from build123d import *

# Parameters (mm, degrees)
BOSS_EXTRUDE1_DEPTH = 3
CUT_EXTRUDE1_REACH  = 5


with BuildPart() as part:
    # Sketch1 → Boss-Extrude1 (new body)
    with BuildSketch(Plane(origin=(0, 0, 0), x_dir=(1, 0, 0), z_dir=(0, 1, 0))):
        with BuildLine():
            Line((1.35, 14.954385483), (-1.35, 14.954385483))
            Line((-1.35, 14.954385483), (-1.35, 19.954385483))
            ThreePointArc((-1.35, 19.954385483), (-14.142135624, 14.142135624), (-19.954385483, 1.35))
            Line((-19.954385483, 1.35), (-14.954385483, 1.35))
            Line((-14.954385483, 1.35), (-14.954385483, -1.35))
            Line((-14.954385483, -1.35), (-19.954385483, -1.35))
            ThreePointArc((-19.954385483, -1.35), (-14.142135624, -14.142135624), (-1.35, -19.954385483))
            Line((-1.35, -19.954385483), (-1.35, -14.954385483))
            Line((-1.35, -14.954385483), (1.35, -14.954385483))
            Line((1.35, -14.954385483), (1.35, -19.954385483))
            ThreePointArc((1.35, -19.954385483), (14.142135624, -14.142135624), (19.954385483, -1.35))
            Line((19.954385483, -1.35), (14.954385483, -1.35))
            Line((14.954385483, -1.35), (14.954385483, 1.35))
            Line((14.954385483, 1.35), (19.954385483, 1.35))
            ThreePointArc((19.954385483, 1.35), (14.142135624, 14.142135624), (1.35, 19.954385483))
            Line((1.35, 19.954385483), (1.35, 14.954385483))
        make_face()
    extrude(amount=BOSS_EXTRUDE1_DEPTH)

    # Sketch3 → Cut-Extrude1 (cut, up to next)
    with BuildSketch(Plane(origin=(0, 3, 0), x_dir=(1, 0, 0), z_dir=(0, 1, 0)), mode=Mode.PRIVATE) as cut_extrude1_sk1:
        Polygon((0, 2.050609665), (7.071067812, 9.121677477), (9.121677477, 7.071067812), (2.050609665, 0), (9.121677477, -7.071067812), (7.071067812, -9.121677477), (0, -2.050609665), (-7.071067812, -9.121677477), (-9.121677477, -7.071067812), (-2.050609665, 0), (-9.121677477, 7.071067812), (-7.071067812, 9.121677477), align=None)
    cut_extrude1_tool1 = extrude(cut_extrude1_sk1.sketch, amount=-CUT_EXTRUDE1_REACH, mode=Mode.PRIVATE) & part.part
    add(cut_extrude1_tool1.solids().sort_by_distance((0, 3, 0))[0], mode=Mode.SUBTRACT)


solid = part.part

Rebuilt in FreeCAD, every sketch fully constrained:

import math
import FreeCAD as App
import Part
import Sketcher

doc = App.newDocument("Part")
body = doc.addObject("PartDesign::Body", "Body")

# Sketch on XZ plane
sketch1 = doc.addObject("Sketcher::SketchObject", "Sketch")
body.addObject(sketch1)
sketch1.AttachmentSupport = (doc.XZ_Plane, [""])
sketch1.MapMode = "FlatFace"
sketch1.addGeometry([
    Part.LineSegment(App.Vector(1.4, -15, 0), App.Vector(-1.4, -15, 0)),  # 0
    Part.LineSegment(App.Vector(-1.4, -15, 0), App.Vector(-1.4, -20, 0)),  # 1
    Part.ArcOfCircle(Part.Circle(App.Vector(0, 0, 0), App.Vector(0, 0, 1), 20), math.radians(-176), math.radians(-94)),  # 2
    Part.LineSegment(App.Vector(-20, -1.4, 0), App.Vector(-15, -1.4, 0)),  # 3
    Part.LineSegment(App.Vector(-15, -1.4, 0), App.Vector(-15, 1.4, 0)),  # 4
    Part.LineSegment(App.Vector(-15, 1.4, 0), App.Vector(-20, 1.4, 0)),  # 5
    Part.ArcOfCircle(Part.Circle(App.Vector(0, 0, 0), App.Vector(0, 0, 1), 20), math.radians(94), math.radians(176)),  # 6
    Part.LineSegment(App.Vector(-1.4, 20, 0), App.Vector(-1.4, 15, 0)),  # 7
    Part.LineSegment(App.Vector(-1.4, 15, 0), App.Vector(1.4, 15, 0)),  # 8
    Part.LineSegment(App.Vector(1.4, 15, 0), App.Vector(1.4, 20, 0)),  # 9
    Part.ArcOfCircle(Part.Circle(App.Vector(0, 0, 0), App.Vector(0, 0, 1), 20), math.radians(4), math.radians(86)),  # 10
    Part.LineSegment(App.Vector(20, 1.4, 0), App.Vector(15, 1.4, 0)),  # 11
    Part.LineSegment(App.Vector(15, 1.4, 0), App.Vector(15, -1.4, 0)),  # 12
    Part.LineSegment(App.Vector(15, -1.4, 0), App.Vector(20, -1.4, 0)),  # 13
    Part.ArcOfCircle(Part.Circle(App.Vector(0, 0, 0), App.Vector(0, 0, 1), 20), math.radians(-86), math.radians(-4)),  # 14
    Part.LineSegment(App.Vector(1.4, -20, 0), App.Vector(1.4, -15, 0)),  # 15
], False)
sketch1.addConstraint([
    Sketcher.Constraint("Coincident", 0, 2, 1, 1),
    Sketcher.Constraint("Coincident", 1, 2, 2, 2),
    Sketcher.Constraint("Coincident", 2, 1, 3, 1),
    Sketcher.Constraint("Coincident", 3, 2, 4, 1),
    Sketcher.Constraint("Coincident", 4, 2, 5, 1),
    Sketcher.Constraint("Coincident", 5, 2, 6, 2),
    Sketcher.Constraint("Coincident", 6, 1, 7, 1),
    Sketcher.Constraint("Coincident", 7, 2, 8, 1),
    Sketcher.Constraint("Coincident", 8, 2, 9, 1),
    Sketcher.Constraint("Coincident", 9, 2, 10, 2),
    Sketcher.Constraint("Coincident", 10, 1, 11, 1),
    Sketcher.Constraint("Coincident", 11, 2, 12, 1),
    Sketcher.Constraint("Coincident", 12, 2, 13, 1),
    Sketcher.Constraint("Coincident", 13, 2, 14, 2),
    Sketcher.Constraint("Coincident", 14, 1, 15, 1),
    Sketcher.Constraint("Coincident", 15, 2, 0, 1),
    Sketcher.Constraint("Horizontal", 0),
    Sketcher.Constraint("Vertical", 1),
    Sketcher.Constraint("Horizontal", 3),
    Sketcher.Constraint("Vertical", 4),
    Sketcher.Constraint("Horizontal", 5),
    Sketcher.Constraint("Vertical", 7),
    Sketcher.Constraint("Horizontal", 8),
    Sketcher.Constraint("Vertical", 9),
    Sketcher.Constraint("Horizontal", 11),
    Sketcher.Constraint("Vertical", 12),
    Sketcher.Constraint("Horizontal", 13),
    Sketcher.Constraint("Vertical", 15),
    Sketcher.Constraint("Coincident", 2, 3, -1, 1),
    Sketcher.Constraint("Coincident", 6, 3, -1, 1),
    Sketcher.Constraint("Coincident", 10, 3, -1, 1),
    Sketcher.Constraint("Coincident", 14, 3, -1, 1),
    Sketcher.Constraint("Equal", 2, 6),
    Sketcher.Constraint("Equal", 6, 10),
    Sketcher.Constraint("Equal", 10, 14),
    Sketcher.Constraint("Symmetric", 0, 2, 8, 2, -1, 1),
    Sketcher.Constraint("Symmetric", 3, 2, 11, 2, -1, 1),
    Sketcher.Constraint("Horizontal", 6, 1, 9, 2),
    Sketcher.Constraint("Horizontal", 5, 2, 10, 1),
    Sketcher.Constraint("Horizontal", 3, 2, 12, 2),
    Sketcher.Constraint("Horizontal", 1, 2, 14, 1),
    Sketcher.Constraint("Equal", 13, 1),
    Sketcher.Constraint("Equal", 8, 4),
    Sketcher.Constraint("Radius", 2, 20.0),
    Sketcher.Constraint("DistanceX", 3, 1, 3, 2, 5.0),
    Sketcher.Constraint("DistanceX", 0, 2, 0, 1, 2.7),
])
pad1 = doc.addObject("PartDesign::Pad", "Pad")
body.addObject(pad1)
pad1.Profile = sketch1
pad1.Length = 3
pad1.Reversed = True

# Sketch on XZ plane
sketch2 = doc.addObject("Sketcher::SketchObject", "Sketch001")
body.addObject(sketch2)
sketch2.AttachmentSupport = (doc.XZ_Plane, [""])
sketch2.MapMode = "FlatFace"
sketch2.AttachmentOffset = App.Placement(App.Vector(0, 0, -3), App.Rotation())
sketch2.addGeometry([
    Part.LineSegment(App.Vector(7.1, -9.1, 0), App.Vector(0, -2.1, 0)),  # 0
    Part.LineSegment(App.Vector(0, -2.1, 0), App.Vector(-7.1, -9.1, 0)),  # 1
    Part.LineSegment(App.Vector(-7.1, -9.1, 0), App.Vector(-9.1, -7.1, 0)),  # 2
    Part.LineSegment(App.Vector(-9.1, -7.1, 0), App.Vector(-2.1, 0, 0)),  # 3
    Part.LineSegment(App.Vector(-2.1, 0, 0), App.Vector(-9.1, 7.1, 0)),  # 4
    Part.LineSegment(App.Vector(-9.1, 7.1, 0), App.Vector(-7.1, 9.1, 0)),  # 5
    Part.LineSegment(App.Vector(-7.1, 9.1, 0), App.Vector(0, 2.1, 0)),  # 6
    Part.LineSegment(App.Vector(0, 2.1, 0), App.Vector(7.1, 9.1, 0)),  # 7
    Part.LineSegment(App.Vector(7.1, 9.1, 0), App.Vector(9.1, 7.1, 0)),  # 8
    Part.LineSegment(App.Vector(9.1, 7.1, 0), App.Vector(2.1, 0, 0)),  # 9
    Part.LineSegment(App.Vector(2.1, 0, 0), App.Vector(9.1, -7.1, 0)),  # 10
    Part.LineSegment(App.Vector(9.1, -7.1, 0), App.Vector(7.1, -9.1, 0)),  # 11
], False)
sketch2.addConstraint([
    Sketcher.Constraint("Coincident", 0, 2, 1, 1),
    Sketcher.Constraint("Coincident", 1, 2, 2, 1),
    Sketcher.Constraint("Coincident", 2, 2, 3, 1),
    Sketcher.Constraint("Coincident", 3, 2, 4, 1),
    Sketcher.Constraint("Coincident", 4, 2, 5, 1),
    Sketcher.Constraint("Coincident", 5, 2, 6, 1),
    Sketcher.Constraint("Coincident", 6, 2, 7, 1),
    Sketcher.Constraint("Coincident", 7, 2, 8, 1),
    Sketcher.Constraint("Coincident", 8, 2, 9, 1),
    Sketcher.Constraint("Coincident", 9, 2, 10, 1),
    Sketcher.Constraint("Coincident", 10, 2, 11, 1),
    Sketcher.Constraint("Coincident", 11, 2, 0, 1),
    Sketcher.Constraint("Symmetric", 0, 2, 6, 2, -1, 1),
    Sketcher.Constraint("Symmetric", 1, 2, 7, 2, -1, 1),
    Sketcher.Constraint("Symmetric", 2, 2, 8, 2, -1, 1),
    Sketcher.Constraint("Symmetric", 3, 2, 9, 2, -1, 1),
    Sketcher.Constraint("Symmetric", 4, 2, 10, 2, -1, 1),
    Sketcher.Constraint("Symmetric", 5, 2, 11, 2, -1, 1),
    Sketcher.Constraint("Symmetric", 5, 2, 7, 2, -2),
    Sketcher.Constraint("Symmetric", 4, 2, 8, 2, -2),
    Sketcher.Constraint("PointOnObject", 0, 2, -2),
    Sketcher.Constraint("PointOnObject", 3, 2, -1),
    Sketcher.Constraint("Perpendicular", 0, 1),
    Sketcher.Constraint("Perpendicular", 1, 2),
    Sketcher.Constraint("Perpendicular", 2, 3),
    Sketcher.Constraint("Equal", 1, 3),
    Sketcher.Constraint("Distance", 0, 10.0),
    Sketcher.Constraint("Distance", 2, 2.9),
])
pocket1 = doc.addObject("PartDesign::Pocket", "Pocket")
body.addObject(pocket1)
pocket1.Profile = sketch2
pocket1.Type = "UpToFirst"
pocket1.Reversed = True

doc.recompute()
